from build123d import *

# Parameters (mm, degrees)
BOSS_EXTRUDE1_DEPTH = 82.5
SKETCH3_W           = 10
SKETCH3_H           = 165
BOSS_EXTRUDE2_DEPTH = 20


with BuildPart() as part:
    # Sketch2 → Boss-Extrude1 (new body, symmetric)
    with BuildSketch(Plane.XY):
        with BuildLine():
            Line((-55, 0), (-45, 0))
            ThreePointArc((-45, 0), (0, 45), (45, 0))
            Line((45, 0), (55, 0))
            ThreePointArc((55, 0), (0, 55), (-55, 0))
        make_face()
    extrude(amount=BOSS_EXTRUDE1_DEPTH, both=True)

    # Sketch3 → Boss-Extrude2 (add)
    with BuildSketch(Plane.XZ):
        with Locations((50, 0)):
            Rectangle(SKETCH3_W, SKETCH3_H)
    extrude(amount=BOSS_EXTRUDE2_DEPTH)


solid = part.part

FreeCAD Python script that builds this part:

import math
import FreeCAD as App
import Part
import Sketcher

V = App.Vector
Q = App.Units.Quantity


def add_polygon(sketch, points):
    """Adds a closed chain of lines whose ends are joined by coincident constraints."""
    first, n = sketch.GeometryCount, len(points)
    for a, b in zip(points, points[1:] + points[:1]):
        sketch.addGeometry(Part.LineSegment(App.Vector(*a, 0), App.Vector(*b, 0)), False)
    for i in range(n):
        sketch.addConstraint(Sketcher.Constraint("Coincident", first + i, 2, first + (i + 1) % n, 1))

doc = App.newDocument("Part")
body = doc.addObject("PartDesign::Body", "Body")

sketch1 = body.newObject("Sketcher::SketchObject", "Sketch")
sketch1.AttachmentSupport = (doc.getObject("XY_Plane"), [""])
sketch1.MapMode = "FlatFace"
sketch1.addGeometry([
    Part.LineSegment(V(-55, 0, 0), V(-45, 0, 0)),
    Part.ArcOfCircle(Part.Circle(V(0, 0, 0), V(0, 0, 1), 45), math.radians(0), math.radians(180)),
    Part.LineSegment(V(45, 0, 0), V(55, 0, 0)),
    Part.ArcOfCircle(Part.Circle(V(0, 0, 0), V(0, 0, 1), 55), math.radians(0), math.radians(180)),
], False)
sketch1.addConstraint([
    Sketcher.Constraint("Coincident", 0, 2, 1, 2),
    Sketcher.Constraint("Coincident", 1, 1, 2, 1),
    Sketcher.Constraint("Coincident", 2, 2, 3, 1),
    Sketcher.Constraint("Coincident", 3, 2, 0, 1),
    Sketcher.Constraint("Horizontal", 0),
    Sketcher.Constraint("Horizontal", 2),
    Sketcher.Constraint("Coincident", 1, 3, -1, 1),
    Sketcher.Constraint("Coincident", 3, 3, -1, 1),
    Sketcher.Constraint("PointOnObject", 0, 2, -1),
    Sketcher.Constraint("PointOnObject", 1, 1, -1),
    Sketcher.Constraint("Radius", 1, Q("45 mm")),
    Sketcher.Constraint("Radius", 3, Q("55 mm")),
])
pad1 = body.newObject("PartDesign::Pad", "Pad")
pad1.Profile = sketch1
pad1.Length = 165
pad1.Midplane = True

sketch2 = body.newObject("Sketcher::SketchObject", "Sketch001")
sketch2.AttachmentSupport = (doc.getObject("XZ_Plane"), [""])
sketch2.MapMode = "FlatFace"
add_polygon(sketch2, [(45, 82), (45, -82), (55, -82), (55, 82)])
sketch2.addConstraint([
    Sketcher.Constraint("Vertical", 0),
    Sketcher.Constraint("Horizontal", 1),
    Sketcher.Constraint("Vertical", 2),
    Sketcher.Constraint("Horizontal", 3),
    Sketcher.Constraint("DistanceX", 1, 1, 1, 2, Q("10 mm")),
    Sketcher.Constraint("DistanceY", 0, 2, 0, 1, Q("165 mm")),
    Sketcher.Constraint("DistanceX", -1, 1, 0, 2, Q("45 mm")),
    Sketcher.Constraint("DistanceY", 0, 2, -1, 1, Q("82.5 mm")),
])
pad2 = body.newObject("PartDesign::Pad", "Pad001")
pad2.Profile = sketch2
pad2.Length = 20

doc.recompute()
